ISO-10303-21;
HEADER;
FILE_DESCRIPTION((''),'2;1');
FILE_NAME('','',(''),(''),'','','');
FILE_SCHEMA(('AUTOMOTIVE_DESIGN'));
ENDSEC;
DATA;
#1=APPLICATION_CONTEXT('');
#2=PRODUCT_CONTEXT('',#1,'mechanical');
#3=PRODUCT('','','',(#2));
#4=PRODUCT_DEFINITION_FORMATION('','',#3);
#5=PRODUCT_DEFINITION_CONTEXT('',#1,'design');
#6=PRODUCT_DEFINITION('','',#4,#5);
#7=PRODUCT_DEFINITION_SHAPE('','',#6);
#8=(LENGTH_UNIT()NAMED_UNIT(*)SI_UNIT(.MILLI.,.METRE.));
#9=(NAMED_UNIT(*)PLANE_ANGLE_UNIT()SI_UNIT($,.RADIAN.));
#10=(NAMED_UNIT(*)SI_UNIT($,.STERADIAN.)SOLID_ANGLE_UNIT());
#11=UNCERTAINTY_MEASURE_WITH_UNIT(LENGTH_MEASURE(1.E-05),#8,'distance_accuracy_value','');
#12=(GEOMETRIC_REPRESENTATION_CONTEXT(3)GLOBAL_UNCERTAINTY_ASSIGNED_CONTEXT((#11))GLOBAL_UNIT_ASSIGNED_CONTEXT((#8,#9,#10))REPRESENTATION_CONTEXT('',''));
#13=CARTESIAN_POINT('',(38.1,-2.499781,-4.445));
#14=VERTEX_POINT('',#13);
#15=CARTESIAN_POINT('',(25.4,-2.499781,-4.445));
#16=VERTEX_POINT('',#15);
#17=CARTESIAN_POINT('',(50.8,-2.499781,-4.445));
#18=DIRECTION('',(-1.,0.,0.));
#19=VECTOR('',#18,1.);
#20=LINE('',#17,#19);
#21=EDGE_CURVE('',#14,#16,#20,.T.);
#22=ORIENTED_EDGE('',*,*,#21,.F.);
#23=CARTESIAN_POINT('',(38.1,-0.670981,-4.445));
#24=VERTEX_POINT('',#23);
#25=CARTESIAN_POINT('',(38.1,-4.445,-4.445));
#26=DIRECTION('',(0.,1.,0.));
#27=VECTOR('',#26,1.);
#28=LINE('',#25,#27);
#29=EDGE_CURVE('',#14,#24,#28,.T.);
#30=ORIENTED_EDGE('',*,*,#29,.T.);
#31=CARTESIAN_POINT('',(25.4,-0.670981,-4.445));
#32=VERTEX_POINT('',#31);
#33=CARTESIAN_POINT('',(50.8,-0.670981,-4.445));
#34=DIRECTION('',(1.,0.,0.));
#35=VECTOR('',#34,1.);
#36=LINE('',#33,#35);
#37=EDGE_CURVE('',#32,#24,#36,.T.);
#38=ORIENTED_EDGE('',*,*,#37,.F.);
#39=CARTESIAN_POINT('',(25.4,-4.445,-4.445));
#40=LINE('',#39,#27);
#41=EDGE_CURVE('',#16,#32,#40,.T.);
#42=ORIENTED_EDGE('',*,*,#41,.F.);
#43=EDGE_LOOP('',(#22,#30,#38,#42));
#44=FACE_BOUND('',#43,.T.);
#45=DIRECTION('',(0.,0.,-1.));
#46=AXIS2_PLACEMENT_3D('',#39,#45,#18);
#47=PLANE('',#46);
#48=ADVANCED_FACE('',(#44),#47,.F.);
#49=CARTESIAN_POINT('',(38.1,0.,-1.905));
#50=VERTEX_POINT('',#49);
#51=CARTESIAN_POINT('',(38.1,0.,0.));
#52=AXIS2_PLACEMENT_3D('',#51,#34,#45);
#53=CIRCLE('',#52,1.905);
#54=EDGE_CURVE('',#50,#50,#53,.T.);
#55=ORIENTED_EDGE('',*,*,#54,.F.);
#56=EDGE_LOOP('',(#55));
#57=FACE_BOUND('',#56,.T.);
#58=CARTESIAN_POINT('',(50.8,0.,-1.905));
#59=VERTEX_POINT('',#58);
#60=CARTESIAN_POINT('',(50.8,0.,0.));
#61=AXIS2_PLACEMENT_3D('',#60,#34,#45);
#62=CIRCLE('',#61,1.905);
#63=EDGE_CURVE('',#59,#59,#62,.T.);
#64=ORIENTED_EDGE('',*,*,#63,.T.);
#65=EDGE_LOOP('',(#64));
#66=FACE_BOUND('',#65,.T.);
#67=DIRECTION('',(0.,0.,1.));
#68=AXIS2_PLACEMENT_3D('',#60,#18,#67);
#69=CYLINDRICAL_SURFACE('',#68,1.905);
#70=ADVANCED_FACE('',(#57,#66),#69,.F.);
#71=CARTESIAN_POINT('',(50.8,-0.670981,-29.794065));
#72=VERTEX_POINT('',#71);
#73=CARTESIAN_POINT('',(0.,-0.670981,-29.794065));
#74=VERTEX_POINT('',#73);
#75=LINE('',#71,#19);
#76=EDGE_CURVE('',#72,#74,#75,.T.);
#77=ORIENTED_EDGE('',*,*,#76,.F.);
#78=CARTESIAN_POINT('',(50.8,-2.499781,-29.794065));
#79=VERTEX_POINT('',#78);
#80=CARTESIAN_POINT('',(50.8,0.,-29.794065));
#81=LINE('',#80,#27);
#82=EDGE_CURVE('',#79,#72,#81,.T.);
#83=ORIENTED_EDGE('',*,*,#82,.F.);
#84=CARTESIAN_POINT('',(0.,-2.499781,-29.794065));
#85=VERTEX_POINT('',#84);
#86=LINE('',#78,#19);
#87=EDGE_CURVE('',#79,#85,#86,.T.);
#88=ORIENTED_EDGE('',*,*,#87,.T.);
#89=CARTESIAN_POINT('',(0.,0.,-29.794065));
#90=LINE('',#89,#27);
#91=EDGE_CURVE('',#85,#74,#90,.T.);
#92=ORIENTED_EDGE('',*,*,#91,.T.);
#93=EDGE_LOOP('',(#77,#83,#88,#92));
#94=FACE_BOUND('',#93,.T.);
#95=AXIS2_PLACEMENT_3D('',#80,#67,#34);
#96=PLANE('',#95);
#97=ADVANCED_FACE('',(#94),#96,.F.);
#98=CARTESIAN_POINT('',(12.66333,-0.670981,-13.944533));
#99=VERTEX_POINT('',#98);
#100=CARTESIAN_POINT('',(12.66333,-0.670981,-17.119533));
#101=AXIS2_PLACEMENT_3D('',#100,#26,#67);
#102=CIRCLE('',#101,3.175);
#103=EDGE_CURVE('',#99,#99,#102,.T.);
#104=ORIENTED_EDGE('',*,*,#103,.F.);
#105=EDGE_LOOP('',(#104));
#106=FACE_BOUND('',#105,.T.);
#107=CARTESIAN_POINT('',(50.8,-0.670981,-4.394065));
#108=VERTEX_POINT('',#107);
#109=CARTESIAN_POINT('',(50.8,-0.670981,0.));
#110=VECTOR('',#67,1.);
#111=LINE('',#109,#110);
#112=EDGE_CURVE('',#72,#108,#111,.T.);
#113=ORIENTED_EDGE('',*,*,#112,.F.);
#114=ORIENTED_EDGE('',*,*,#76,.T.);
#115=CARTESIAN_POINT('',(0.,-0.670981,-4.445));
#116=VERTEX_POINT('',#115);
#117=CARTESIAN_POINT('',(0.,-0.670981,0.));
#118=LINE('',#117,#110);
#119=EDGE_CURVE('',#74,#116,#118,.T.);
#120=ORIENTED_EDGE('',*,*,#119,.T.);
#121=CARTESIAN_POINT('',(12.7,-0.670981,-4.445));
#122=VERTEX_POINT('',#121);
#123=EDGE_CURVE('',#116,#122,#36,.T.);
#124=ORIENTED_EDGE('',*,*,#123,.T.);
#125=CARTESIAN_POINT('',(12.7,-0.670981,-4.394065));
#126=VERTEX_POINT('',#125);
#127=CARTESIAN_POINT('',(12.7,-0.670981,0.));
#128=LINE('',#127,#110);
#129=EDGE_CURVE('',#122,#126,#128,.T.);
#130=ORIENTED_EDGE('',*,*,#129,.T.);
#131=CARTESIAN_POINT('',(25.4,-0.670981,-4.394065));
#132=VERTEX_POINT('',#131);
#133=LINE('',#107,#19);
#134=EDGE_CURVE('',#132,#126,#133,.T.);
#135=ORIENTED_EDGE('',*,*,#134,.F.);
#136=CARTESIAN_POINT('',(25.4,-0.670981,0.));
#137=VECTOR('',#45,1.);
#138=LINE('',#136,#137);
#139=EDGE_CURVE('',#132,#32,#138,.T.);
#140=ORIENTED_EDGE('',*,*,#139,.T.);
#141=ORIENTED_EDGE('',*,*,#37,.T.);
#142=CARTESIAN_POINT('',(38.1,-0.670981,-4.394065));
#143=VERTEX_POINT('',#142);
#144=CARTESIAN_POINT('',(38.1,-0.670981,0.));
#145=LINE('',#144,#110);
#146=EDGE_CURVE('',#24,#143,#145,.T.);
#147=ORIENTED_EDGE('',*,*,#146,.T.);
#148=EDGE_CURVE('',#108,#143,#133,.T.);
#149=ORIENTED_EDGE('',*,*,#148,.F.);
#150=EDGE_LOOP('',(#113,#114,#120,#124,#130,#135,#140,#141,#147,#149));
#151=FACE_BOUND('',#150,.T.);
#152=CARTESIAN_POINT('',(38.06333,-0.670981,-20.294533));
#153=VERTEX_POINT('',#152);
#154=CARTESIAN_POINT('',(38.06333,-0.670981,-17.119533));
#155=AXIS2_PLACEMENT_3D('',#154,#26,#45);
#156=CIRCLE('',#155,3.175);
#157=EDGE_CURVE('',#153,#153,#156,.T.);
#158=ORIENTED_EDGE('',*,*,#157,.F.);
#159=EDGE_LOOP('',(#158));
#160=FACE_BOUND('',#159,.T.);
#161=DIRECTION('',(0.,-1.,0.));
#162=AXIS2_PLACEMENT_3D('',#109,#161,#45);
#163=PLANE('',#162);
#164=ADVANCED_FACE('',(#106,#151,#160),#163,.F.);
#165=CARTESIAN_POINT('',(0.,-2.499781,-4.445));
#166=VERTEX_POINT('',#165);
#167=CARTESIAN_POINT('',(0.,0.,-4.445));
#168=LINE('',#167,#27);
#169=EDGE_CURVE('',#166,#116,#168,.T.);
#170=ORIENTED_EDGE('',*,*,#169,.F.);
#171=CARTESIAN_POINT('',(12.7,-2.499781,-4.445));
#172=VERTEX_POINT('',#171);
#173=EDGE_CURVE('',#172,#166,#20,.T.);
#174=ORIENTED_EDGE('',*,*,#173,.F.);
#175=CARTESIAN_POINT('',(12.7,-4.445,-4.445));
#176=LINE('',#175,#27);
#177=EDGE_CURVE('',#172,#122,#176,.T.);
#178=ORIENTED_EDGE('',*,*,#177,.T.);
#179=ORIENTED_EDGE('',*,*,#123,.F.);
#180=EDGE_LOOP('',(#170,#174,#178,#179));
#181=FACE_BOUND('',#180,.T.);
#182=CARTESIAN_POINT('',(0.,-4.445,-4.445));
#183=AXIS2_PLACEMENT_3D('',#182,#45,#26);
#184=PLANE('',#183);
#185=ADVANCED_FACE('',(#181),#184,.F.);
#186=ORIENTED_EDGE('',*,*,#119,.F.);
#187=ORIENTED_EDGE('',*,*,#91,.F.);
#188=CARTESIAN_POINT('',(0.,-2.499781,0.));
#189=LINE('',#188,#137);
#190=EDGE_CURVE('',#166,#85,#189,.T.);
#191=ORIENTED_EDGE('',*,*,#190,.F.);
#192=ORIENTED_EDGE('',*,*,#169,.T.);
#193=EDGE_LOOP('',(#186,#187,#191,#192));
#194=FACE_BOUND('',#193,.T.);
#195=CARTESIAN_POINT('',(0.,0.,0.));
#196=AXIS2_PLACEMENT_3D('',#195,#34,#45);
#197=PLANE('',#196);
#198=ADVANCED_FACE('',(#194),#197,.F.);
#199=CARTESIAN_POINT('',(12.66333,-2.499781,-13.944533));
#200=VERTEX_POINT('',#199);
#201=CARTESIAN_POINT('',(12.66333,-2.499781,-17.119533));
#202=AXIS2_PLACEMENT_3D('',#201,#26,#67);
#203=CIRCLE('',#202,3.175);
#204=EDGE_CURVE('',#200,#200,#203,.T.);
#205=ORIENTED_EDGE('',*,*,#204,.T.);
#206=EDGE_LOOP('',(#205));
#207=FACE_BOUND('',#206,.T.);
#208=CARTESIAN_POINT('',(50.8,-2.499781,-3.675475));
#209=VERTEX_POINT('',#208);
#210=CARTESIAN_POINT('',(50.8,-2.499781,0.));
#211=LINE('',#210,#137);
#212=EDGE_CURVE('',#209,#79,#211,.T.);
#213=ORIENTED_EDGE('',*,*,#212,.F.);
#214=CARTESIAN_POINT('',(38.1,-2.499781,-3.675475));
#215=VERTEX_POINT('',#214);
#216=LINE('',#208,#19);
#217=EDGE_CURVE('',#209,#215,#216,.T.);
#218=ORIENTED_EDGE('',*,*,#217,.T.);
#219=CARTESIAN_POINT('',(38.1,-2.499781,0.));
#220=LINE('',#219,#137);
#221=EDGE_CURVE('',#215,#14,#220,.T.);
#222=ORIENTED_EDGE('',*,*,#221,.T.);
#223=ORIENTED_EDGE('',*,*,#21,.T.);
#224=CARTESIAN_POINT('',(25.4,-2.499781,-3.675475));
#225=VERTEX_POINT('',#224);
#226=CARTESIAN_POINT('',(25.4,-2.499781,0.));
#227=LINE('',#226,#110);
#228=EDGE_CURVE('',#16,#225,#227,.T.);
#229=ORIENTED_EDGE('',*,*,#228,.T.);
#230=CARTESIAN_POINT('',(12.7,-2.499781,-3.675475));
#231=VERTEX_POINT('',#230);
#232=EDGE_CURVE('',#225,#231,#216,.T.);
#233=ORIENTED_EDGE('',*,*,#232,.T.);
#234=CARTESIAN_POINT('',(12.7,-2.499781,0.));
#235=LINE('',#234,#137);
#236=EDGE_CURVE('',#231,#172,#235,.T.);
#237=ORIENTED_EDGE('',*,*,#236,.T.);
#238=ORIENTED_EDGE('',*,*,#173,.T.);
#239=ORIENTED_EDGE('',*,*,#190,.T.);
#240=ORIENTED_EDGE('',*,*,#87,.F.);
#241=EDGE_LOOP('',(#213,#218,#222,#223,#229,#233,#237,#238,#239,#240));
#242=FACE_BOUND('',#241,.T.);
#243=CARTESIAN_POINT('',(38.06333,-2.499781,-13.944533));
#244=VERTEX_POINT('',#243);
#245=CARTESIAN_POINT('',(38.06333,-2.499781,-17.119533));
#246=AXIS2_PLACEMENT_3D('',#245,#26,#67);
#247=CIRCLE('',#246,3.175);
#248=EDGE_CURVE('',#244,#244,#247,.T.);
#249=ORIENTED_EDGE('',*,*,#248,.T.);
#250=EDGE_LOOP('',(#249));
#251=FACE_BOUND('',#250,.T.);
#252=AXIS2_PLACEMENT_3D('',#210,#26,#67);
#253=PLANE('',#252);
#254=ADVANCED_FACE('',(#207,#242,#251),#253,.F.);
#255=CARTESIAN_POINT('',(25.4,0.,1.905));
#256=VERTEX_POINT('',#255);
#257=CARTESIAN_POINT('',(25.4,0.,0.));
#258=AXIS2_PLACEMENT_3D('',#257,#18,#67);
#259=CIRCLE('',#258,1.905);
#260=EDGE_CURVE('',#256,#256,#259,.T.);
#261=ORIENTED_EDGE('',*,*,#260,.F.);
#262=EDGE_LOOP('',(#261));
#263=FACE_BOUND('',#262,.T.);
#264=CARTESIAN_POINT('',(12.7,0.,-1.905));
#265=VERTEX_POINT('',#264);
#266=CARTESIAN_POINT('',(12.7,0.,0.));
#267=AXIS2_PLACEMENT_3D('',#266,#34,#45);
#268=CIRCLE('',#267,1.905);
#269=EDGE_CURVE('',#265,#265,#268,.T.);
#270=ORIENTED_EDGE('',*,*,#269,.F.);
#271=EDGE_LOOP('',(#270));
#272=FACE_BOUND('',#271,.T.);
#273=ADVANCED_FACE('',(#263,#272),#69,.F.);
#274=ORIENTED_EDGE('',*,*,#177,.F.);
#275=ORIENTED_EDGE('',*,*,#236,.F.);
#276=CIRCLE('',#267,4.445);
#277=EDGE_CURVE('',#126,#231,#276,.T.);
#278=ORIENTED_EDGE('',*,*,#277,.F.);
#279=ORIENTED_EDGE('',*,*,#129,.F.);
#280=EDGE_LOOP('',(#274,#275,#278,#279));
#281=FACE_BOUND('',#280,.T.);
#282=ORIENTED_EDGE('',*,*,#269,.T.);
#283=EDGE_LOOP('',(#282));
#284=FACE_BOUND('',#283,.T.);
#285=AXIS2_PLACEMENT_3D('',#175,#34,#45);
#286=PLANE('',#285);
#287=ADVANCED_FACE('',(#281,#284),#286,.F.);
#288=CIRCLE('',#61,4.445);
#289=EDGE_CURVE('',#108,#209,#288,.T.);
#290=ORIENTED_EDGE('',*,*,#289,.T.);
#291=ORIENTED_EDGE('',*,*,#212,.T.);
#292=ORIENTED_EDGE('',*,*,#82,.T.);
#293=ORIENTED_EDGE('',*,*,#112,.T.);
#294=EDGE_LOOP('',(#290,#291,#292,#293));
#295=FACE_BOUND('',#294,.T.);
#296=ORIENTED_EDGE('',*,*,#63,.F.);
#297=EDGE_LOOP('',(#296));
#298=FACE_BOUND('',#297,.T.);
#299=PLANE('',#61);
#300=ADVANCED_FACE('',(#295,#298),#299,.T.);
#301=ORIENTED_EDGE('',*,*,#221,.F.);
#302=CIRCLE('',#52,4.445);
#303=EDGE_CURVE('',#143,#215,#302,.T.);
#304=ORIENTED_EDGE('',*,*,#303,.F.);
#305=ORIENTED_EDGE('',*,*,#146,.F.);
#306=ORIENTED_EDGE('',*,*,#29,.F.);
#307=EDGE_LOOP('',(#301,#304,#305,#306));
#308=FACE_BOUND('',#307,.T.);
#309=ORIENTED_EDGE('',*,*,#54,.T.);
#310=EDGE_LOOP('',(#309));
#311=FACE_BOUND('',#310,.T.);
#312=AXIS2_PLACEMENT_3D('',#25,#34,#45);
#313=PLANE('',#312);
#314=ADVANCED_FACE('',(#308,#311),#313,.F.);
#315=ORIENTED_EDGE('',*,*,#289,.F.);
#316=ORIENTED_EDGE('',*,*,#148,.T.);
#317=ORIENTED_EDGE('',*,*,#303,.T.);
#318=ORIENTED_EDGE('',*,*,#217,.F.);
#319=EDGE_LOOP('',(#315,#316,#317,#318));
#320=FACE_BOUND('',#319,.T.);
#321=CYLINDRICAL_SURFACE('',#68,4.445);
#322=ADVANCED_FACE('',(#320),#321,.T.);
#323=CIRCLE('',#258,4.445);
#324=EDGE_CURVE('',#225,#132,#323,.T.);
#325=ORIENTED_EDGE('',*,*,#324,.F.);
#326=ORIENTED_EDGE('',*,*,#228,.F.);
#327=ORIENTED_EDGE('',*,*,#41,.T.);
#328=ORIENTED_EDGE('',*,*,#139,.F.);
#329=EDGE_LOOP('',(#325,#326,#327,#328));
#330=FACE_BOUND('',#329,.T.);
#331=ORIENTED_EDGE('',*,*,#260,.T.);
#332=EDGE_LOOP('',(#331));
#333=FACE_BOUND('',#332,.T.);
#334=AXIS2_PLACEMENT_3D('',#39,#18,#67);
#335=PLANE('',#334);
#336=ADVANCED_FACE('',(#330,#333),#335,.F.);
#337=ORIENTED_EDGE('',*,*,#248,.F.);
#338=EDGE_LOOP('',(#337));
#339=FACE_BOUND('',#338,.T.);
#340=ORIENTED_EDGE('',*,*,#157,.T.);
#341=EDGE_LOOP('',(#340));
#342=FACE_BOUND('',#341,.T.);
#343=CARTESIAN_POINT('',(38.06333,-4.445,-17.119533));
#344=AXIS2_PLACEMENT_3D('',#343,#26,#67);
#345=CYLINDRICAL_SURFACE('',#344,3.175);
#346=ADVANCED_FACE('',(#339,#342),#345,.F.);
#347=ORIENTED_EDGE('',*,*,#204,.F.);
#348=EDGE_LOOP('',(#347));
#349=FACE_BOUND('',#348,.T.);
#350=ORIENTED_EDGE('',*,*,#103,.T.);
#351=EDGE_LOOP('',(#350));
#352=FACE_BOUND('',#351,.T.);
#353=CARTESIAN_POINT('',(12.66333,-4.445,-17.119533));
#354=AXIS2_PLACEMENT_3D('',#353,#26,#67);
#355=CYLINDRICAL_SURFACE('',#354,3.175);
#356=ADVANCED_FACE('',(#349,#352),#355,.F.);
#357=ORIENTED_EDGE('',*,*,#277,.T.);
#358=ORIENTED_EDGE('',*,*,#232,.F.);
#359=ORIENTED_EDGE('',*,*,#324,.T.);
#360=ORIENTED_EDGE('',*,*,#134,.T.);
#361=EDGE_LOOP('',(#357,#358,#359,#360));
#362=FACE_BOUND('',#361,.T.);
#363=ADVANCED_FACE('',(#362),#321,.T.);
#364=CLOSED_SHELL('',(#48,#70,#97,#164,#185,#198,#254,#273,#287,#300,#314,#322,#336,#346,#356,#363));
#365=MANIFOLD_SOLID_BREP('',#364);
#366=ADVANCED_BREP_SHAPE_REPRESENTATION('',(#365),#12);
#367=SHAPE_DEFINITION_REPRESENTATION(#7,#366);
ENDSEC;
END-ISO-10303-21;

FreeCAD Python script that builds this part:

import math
import FreeCAD as App
import Part
import Sketcher
Q = App.Units.Quantity


def add_polygon(sketch, points):
    """Adds a closed chain of lines whose ends are joined by coincident constraints."""
    first, n = sketch.GeometryCount, len(points)
    for a, b in zip(points, points[1:] + points[:1]):
        sketch.addGeometry(Part.LineSegment(App.Vector(*a, 0), App.Vector(*b, 0)), False)
    for i in range(n):
        sketch.addConstraint(Sketcher.Constraint("Coincident", first + i, 2, first + (i + 1) % n, 1))

doc = App.newDocument("Part")
body = doc.addObject("PartDesign::Body", "Body")

# Sketch on YZ plane
sketch1 = doc.addObject("Sketcher::SketchObject", "Sketch")
body.addObject(sketch1)
sketch1.AttachmentSupport = (doc.YZ_Plane, [""])
sketch1.MapMode = "FlatFace"
sketch1.addGeometry(Part.LineSegment(App.Vector(-0.7, -29.8, 0), App.Vector(-0.7, -4.4, 0)), False)
sketch1.addGeometry(Part.ArcOfCircle(Part.Circle(App.Vector(0, 0, 0), App.Vector(0, 0, 1), 4.4), math.radians(-99), math.radians(236)), False)
sketch1.addGeometry(Part.LineSegment(App.Vector(-2.5, -3.7, 0), App.Vector(-2.5, -29.8, 0)), False)
sketch1.addGeometry(Part.LineSegment(App.Vector(-2.5, -29.8, 0), App.Vector(-0.7, -29.8, 0)), False)
sketch1.addGeometry(Part.Circle(App.Vector(0, 0, 0), App.Vector(0, 0, 1), 1.9), False)
sketch1.addConstraint(Sketcher.Constraint("Coincident", 0, 2, 1, 1))
sketch1.addConstraint(Sketcher.Constraint("Coincident", 1, 2, 2, 1))
sketch1.addConstraint(Sketcher.Constraint("Coincident", 2, 2, 3, 1))
sketch1.addConstraint(Sketcher.Constraint("Coincident", 3, 2, 0, 1))
sketch1.addConstraint(Sketcher.Constraint("Vertical", 0))
sketch1.addConstraint(Sketcher.Constraint("Vertical", 2))
sketch1.addConstraint(Sketcher.Constraint("Horizontal", 3))
sketch1.addConstraint(Sketcher.Constraint("Coincident", 1, 3, -1, 1))
sketch1.addConstraint(Sketcher.Constraint("Coincident", 4, 3, -1, 1))
sketch1.addConstraint(Sketcher.Constraint("Diameter", 4, Q("0.15 in")))
sketch1.addConstraint(Sketcher.Constraint("DistanceY", 0, 1, 0, 2, Q("1 in")))
sketch1.addConstraint(Sketcher.Constraint("Radius", 1, Q("0.175 in")))
sketch1.addConstraint(Sketcher.Constraint("DistanceX", 3, 1, 3, 2, Q("0.072 in")))
sketch1.addConstraint(Sketcher.Constraint("DistanceY", 2, 2, 2, 1, Q("26.11859 mm")))
pad1 = doc.addObject("PartDesign::Pad", "Pad")
body.addObject(pad1)
pad1.Profile = sketch1
pad1.Length = Q("2 in")

# Sketch on XZ plane
sketch2 = doc.addObject("Sketcher::SketchObject", "Sketch001")
body.addObject(sketch2)
sketch2.AttachmentSupport = (doc.XZ_Plane, [""])
sketch2.MapMode = "FlatFace"
sketch2.AttachmentOffset = App.Placement(App.Vector(0, 0, -14.569019), App.Rotation())
add_polygon(sketch2, [(0, -4), (0, 4), (13, 4), (13, -4)])  # lines 0-3
add_polygon(sketch2, [(25, -4), (25, 4), (38, 4), (38, -4)])  # lines 4-7
sketch2.addConstraint(Sketcher.Constraint("Vertical", 0))
sketch2.addConstraint(Sketcher.Constraint("Horizontal", 1))
sketch2.addConstraint(Sketcher.Constraint("Vertical", 2))
sketch2.addConstraint(Sketcher.Constraint("Horizontal", 3))
sketch2.addConstraint(Sketcher.Constraint("Vertical", 4))
sketch2.addConstraint(Sketcher.Constraint("Horizontal", 5))
sketch2.addConstraint(Sketcher.Constraint("Vertical", 6))
sketch2.addConstraint(Sketcher.Constraint("Horizontal", 7))
sketch2.addConstraint(Sketcher.Constraint("Symmetric", 0, 2, 3, 2, -1, 1))
sketch2.addConstraint(Sketcher.Constraint("Horizontal", 1, 2, 4, 2))
sketch2.addConstraint(Sketcher.Constraint("Horizontal", 3, 2, 6, 2))
sketch2.addConstraint(Sketcher.Constraint("Equal", 3, 5))
sketch2.addConstraint(Sketcher.Constraint("DistanceX", 1, 1, 1, 2, Q("0.5 in")))
sketch2.addConstraint(Sketcher.Constraint("DistanceX", -1, 1, 4, 2, Q("1 in")))
sketch2.addConstraint(Sketcher.Constraint("DistanceY", 0, 1, 0, 2, Q("0.35 in")))
pocket1 = doc.addObject("PartDesign::Pocket", "Pocket")
body.addObject(pocket1)
pocket1.Profile = sketch2
pocket1.Type = "ThroughAll"
pocket1.Reversed = True

# Sketch on XZ plane
sketch3 = doc.addObject("Sketcher::SketchObject", "Sketch002")
body.addObject(sketch3)
sketch3.AttachmentSupport = (doc.XZ_Plane, [""])
sketch3.MapMode = "FlatFace"
sketch3.AttachmentOffset = App.Placement(App.Vector(0, 0, 0.670981), App.Rotation())
sketch3.addGeometry(Part.Circle(App.Vector(12.7, -17.1, 0), App.Vector(0, 0, 1), 3.2), False)
sketch3.addGeometry(Part.Circle(App.Vector(38.1, -17.1, 0), App.Vector(0, 0, 1), 3.2), False)
sketch3.addConstraint(Sketcher.Constraint("Equal", 0, 1))
sketch3.addConstraint(Sketcher.Constraint("Horizontal", 0, 3, 1, 3))
sketch3.addConstraint(Sketcher.Constraint("Diameter", 0, Q("0.25 in")))
sketch3.addConstraint(Sketcher.Constraint("DistanceX", 0, 3, 1, 3, Q("1 in")))
sketch3.addConstraint(Sketcher.Constraint("DistanceX", -1, 1, 0, 3, Q("12.66333 mm")))
sketch3.addConstraint(Sketcher.Constraint("DistanceY", 0, 3, -1, 1, Q("17.119533 mm")))
pocket2 = doc.addObject("PartDesign::Pocket", "Pocket001")
body.addObject(pocket2)
pocket2.Profile = sketch3
pocket2.Type = "ThroughAll"
pocket2.Reversed = True

doc.recompute()
